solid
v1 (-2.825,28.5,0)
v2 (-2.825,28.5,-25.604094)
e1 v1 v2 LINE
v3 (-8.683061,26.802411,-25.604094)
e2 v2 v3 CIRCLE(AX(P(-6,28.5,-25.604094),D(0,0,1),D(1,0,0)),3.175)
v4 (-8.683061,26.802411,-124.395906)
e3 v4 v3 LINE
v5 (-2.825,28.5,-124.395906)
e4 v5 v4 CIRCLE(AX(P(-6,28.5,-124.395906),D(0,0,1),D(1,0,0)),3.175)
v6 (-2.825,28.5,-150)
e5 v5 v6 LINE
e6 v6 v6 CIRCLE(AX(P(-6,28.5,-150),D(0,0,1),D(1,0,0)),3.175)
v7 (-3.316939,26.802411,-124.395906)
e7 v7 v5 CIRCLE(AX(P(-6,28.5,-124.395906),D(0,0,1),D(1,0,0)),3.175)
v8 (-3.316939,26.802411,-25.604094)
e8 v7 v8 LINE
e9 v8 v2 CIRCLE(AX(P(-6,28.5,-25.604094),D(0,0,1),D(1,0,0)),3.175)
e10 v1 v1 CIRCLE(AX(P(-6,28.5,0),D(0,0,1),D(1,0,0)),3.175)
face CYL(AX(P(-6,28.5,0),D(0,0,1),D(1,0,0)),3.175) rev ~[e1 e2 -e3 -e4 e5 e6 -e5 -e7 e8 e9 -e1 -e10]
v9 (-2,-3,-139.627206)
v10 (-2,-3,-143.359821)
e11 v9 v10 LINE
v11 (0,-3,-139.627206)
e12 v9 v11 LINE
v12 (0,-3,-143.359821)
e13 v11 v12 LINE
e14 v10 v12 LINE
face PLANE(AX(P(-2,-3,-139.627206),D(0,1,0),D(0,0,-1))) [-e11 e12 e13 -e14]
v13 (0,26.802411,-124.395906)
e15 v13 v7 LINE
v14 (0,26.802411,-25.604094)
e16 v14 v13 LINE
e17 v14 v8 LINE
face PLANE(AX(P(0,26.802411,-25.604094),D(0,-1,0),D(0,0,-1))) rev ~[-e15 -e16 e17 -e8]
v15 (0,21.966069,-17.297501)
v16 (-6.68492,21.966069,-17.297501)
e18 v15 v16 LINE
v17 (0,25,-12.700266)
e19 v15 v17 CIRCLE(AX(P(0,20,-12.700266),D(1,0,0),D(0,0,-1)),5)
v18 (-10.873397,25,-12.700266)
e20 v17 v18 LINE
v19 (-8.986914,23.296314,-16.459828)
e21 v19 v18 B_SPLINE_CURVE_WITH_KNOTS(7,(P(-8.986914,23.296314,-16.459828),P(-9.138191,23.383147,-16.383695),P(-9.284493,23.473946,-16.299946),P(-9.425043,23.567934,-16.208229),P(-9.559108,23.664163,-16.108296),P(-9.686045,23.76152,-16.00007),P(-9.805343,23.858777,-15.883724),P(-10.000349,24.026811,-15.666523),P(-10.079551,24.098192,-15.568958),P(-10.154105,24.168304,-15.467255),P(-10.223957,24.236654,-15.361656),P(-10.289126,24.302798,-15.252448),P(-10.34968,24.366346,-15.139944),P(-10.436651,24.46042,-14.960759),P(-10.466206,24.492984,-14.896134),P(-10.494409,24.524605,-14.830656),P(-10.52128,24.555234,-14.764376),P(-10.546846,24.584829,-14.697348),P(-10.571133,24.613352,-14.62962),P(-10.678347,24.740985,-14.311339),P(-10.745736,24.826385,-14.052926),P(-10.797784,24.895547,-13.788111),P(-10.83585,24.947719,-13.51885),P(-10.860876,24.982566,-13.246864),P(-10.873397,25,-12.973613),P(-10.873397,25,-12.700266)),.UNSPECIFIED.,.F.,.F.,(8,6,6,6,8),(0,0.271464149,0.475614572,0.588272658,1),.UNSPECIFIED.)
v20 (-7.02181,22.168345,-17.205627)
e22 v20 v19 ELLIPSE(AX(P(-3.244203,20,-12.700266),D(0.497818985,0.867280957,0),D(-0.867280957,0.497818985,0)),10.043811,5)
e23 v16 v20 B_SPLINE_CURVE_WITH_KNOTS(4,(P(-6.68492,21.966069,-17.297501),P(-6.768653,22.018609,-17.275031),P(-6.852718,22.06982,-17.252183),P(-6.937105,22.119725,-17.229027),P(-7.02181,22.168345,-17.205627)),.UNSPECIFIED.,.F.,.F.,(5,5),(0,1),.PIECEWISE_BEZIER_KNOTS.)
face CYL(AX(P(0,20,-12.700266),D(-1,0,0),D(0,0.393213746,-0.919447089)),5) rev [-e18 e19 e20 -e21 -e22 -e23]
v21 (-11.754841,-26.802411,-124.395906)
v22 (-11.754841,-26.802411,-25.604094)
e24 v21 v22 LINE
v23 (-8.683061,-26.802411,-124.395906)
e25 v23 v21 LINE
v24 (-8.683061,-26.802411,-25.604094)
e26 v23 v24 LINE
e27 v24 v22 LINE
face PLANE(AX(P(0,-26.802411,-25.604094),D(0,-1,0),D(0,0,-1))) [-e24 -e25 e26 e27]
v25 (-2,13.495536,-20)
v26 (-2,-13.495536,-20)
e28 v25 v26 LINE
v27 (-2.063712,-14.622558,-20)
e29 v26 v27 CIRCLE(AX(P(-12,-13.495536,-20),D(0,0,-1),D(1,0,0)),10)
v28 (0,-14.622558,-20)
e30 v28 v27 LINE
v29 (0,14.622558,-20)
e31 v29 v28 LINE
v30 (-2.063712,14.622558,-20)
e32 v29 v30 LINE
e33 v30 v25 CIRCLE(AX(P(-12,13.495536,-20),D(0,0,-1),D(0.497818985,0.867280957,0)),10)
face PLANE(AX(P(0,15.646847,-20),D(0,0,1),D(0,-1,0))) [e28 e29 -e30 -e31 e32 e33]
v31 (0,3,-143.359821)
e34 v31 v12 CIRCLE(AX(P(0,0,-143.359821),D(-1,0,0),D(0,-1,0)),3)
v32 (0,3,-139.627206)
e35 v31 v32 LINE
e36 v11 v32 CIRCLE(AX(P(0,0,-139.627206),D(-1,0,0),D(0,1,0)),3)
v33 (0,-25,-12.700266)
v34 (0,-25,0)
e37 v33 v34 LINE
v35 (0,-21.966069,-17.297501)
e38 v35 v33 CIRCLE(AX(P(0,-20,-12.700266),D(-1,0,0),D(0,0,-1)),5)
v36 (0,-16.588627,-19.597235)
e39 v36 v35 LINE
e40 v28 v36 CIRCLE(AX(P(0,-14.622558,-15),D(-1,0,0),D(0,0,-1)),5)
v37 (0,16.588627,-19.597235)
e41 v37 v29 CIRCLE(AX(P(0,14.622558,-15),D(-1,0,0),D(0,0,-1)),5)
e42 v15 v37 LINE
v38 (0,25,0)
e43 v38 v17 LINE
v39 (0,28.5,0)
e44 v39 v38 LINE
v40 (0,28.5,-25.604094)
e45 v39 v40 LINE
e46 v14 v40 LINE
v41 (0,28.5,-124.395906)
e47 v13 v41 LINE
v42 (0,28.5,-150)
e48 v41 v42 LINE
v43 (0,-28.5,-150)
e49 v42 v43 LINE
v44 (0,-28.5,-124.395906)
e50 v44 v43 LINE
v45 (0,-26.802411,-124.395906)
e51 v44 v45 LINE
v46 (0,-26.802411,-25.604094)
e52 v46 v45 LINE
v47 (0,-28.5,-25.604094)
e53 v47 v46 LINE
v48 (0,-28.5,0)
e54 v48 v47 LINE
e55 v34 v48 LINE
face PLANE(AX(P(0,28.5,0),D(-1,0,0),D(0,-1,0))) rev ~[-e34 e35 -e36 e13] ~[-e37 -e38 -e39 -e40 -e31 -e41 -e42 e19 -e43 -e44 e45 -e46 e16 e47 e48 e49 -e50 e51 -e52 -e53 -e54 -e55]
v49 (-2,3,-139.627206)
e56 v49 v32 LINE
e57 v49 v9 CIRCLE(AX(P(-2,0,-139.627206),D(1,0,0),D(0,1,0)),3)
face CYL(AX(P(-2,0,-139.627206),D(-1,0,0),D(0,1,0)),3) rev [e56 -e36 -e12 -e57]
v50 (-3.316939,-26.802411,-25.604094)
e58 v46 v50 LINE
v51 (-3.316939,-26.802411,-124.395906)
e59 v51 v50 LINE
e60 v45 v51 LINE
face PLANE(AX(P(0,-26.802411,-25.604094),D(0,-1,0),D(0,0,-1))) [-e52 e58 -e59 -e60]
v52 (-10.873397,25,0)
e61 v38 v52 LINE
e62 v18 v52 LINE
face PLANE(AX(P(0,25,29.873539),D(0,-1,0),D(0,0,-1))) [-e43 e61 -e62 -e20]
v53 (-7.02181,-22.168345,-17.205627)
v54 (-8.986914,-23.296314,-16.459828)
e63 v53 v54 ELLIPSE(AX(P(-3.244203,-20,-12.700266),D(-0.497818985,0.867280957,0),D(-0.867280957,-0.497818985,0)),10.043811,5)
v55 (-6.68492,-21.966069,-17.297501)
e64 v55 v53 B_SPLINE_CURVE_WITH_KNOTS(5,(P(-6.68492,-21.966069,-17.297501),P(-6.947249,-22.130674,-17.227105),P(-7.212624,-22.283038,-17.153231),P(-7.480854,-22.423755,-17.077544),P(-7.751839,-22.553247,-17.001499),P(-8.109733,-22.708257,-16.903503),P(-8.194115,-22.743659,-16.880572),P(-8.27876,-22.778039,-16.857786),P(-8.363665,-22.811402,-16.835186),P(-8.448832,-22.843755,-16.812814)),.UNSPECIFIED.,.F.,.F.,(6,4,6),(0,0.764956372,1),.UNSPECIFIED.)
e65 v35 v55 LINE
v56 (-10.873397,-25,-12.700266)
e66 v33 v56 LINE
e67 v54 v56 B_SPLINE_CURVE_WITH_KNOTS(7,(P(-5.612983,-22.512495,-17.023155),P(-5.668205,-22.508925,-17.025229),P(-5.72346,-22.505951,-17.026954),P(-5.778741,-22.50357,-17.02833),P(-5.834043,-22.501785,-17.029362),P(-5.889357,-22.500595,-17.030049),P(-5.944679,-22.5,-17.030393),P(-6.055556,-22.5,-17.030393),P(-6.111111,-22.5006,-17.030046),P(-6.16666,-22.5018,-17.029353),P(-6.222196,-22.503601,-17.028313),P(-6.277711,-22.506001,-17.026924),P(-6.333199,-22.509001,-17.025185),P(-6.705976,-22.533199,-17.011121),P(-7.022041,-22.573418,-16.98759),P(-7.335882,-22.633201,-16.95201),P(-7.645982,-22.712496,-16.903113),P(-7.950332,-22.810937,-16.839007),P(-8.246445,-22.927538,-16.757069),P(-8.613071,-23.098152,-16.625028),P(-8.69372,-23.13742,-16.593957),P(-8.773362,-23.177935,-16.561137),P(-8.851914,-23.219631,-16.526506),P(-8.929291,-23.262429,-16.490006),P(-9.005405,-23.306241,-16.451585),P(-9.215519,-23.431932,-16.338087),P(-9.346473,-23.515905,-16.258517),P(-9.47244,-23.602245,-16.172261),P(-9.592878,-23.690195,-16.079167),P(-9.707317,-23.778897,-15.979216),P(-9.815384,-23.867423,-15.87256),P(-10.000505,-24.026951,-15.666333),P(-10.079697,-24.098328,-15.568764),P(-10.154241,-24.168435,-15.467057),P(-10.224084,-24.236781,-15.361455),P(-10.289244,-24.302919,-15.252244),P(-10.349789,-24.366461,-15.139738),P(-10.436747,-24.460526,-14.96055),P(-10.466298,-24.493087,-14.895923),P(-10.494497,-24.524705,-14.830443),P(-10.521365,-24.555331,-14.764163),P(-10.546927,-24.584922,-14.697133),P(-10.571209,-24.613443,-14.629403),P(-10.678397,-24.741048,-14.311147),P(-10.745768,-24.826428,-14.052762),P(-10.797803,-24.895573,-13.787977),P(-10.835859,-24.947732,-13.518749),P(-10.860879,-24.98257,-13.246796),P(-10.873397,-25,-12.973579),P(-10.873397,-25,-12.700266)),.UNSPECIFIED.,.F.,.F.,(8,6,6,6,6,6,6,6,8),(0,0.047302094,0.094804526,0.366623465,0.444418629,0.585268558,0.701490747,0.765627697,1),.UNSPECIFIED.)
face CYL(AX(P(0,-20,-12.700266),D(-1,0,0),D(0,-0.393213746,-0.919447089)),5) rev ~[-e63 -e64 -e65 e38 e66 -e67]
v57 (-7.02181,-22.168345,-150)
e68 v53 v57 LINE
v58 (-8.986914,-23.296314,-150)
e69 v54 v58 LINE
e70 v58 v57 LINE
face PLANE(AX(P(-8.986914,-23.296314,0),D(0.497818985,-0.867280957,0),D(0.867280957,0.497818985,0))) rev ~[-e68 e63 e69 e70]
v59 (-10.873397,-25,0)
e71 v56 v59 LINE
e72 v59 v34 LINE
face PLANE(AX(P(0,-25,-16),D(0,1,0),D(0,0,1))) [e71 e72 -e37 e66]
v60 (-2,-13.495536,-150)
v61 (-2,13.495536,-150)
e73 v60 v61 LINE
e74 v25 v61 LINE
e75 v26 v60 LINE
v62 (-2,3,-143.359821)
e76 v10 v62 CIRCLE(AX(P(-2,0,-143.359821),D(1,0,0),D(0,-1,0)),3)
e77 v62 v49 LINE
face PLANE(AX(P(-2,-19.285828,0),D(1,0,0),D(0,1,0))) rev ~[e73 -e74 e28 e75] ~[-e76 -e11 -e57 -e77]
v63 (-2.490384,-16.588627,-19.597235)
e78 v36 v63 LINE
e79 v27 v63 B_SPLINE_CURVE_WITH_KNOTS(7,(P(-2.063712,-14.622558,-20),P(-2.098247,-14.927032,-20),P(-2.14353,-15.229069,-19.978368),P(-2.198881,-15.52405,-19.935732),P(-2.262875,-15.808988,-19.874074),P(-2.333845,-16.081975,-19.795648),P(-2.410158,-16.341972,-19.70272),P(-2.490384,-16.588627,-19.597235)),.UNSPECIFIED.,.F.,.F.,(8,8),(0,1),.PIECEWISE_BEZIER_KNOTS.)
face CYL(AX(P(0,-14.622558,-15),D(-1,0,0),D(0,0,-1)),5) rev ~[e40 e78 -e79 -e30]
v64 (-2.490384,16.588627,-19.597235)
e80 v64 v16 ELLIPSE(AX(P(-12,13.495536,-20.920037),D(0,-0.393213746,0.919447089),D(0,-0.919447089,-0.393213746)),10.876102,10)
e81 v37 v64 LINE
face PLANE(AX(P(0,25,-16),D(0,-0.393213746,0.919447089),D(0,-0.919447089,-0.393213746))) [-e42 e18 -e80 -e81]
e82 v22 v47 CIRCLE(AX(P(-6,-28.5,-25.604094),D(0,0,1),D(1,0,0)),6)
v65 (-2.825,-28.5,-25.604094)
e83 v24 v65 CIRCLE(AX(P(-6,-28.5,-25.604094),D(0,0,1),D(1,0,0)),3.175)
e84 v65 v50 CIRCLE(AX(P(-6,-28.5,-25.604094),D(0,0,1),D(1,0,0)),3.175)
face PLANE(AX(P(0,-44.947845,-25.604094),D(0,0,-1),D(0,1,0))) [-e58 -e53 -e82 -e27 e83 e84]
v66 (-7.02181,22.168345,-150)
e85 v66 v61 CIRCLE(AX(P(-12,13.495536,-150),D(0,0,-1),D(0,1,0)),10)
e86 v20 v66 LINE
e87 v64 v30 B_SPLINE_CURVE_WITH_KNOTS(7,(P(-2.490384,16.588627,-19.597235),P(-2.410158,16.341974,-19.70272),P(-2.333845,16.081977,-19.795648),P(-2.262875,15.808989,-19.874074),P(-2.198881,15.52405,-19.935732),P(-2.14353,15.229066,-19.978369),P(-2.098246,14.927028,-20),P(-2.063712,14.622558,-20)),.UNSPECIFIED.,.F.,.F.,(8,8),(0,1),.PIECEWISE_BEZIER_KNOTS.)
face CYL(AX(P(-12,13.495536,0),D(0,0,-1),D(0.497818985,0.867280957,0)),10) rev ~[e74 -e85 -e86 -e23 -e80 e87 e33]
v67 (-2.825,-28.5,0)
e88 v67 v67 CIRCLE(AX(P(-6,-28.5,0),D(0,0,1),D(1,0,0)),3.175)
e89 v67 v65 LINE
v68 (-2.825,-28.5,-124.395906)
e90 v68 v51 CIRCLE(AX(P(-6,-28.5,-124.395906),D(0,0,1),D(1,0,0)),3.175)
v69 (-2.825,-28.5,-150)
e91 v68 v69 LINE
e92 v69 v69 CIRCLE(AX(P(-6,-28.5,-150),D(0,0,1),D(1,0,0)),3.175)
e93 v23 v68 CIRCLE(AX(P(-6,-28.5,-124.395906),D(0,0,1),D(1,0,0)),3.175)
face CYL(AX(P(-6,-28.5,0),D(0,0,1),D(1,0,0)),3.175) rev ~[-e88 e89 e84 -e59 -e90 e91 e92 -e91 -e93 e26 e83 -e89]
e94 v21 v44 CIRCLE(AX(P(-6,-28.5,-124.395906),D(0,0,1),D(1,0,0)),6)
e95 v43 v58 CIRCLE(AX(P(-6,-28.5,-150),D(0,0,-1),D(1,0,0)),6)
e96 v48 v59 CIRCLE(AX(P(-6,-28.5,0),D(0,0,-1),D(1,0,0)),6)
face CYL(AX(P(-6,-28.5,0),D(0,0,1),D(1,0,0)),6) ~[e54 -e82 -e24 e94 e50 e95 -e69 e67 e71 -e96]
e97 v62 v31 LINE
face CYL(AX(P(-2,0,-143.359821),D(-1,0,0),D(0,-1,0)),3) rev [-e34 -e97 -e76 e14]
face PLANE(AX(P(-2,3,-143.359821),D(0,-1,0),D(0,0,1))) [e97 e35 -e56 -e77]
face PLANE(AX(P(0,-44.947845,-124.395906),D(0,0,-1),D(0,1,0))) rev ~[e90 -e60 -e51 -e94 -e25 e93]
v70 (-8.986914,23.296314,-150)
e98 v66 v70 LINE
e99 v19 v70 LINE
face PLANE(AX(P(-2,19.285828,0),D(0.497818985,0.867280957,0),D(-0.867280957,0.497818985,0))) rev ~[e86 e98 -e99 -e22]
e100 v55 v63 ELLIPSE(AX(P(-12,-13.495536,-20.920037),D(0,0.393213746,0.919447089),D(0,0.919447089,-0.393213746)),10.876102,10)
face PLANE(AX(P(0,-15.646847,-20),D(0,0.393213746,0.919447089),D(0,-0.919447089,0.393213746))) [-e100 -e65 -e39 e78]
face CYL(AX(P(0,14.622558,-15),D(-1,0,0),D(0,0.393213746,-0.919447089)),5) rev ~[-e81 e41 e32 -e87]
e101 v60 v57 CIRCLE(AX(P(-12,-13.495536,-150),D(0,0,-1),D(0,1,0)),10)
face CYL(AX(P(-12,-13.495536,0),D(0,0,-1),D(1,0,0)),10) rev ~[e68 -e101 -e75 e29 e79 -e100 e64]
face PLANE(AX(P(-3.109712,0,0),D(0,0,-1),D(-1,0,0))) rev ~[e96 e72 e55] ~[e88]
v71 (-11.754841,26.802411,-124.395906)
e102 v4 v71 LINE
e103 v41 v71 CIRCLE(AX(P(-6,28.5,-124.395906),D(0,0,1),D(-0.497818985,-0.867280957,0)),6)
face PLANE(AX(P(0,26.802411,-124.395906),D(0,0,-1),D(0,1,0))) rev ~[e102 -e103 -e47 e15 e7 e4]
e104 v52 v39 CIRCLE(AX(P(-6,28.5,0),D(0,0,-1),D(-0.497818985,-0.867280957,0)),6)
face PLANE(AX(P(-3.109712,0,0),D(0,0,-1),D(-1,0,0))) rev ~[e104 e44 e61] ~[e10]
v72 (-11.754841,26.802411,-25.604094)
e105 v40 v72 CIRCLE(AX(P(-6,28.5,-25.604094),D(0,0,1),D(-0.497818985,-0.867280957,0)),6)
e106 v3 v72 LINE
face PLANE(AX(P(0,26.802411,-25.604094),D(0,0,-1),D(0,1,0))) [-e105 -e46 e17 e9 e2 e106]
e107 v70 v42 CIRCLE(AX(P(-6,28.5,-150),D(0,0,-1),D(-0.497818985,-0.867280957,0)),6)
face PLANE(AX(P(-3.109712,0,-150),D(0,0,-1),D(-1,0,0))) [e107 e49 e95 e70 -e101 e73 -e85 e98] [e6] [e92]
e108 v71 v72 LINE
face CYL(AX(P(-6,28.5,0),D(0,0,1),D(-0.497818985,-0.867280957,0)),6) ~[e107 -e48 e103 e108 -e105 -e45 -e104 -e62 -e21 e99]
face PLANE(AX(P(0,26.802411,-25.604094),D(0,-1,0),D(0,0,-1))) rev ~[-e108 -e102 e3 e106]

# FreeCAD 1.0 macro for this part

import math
import FreeCAD as App
import Part
import Sketcher

V = App.Vector
Q = App.Units.Quantity


def edges_at(feature, points):
    """Names of the edges that pass closest to the given points."""
    edges = feature.Shape.Edges
    near = lambda p: min(range(len(edges)), key=lambda i: edges[i].distToShape(Part.Vertex(*p))[0])
    return sorted({f"Edge{near(p) + 1}" for p in points})


def add_polygon(sketch, points):
    """Adds a closed chain of lines whose ends are joined by coincident constraints."""
    first, n = sketch.GeometryCount, len(points)
    for a, b in zip(points, points[1:] + points[:1]):
        sketch.addGeometry(Part.LineSegment(App.Vector(*a, 0), App.Vector(*b, 0)), False)
    for i in range(n):
        sketch.addConstraint(Sketcher.Constraint("Coincident", first + i, 2, first + (i + 1) % n, 1))

doc = App.newDocument("Part")
body = doc.addObject("PartDesign::Body", "Body")

sketch1 = body.newObject("Sketcher::SketchObject", "Sketch")
sketch1.AttachmentSupport = (doc.getObject("XY_Plane"), [""])
sketch1.MapMode = "FlatFace"
sketch1.addGeometry([
    Part.LineSegment(V(-9, 23.3, 0), V(-2, 19.3, 0)),
    Part.LineSegment(V(-2, 19.3, 0), V(-2, -19.3, 0)),
    Part.LineSegment(V(-2, -19.3, 0), V(-9, -23.3, 0)),
    Part.ArcOfCircle(Part.Circle(V(-6, -28.5, 0), V(0, 0, 1), 6), math.radians(120), math.radians(360)),
    Part.LineSegment(V(0, -28.5, 0), V(0, 28.5, 0)),
    Part.ArcOfCircle(Part.Circle(V(-6, 28.5, 0), V(0, 0, 1), 6), math.radians(0), math.radians(240)),
    Part.Circle(V(-6, -28.5, 0), V(0, 0, 1), 3.2),
    Part.Circle(V(-6, 28.5, 0), V(0, 0, 1), 3.2),
], False)
sketch1.addConstraint([
    Sketcher.Constraint("Coincident", 0, 2, 1, 1),
    Sketcher.Constraint("Coincident", 1, 2, 2, 1),
    Sketcher.Constraint("Tangent", 2, 2, 3, 1),
    Sketcher.Constraint("Tangent", 3, 2, 4, 1),
    Sketcher.Constraint("Tangent", 4, 2, 5, 1),
    Sketcher.Constraint("Tangent", 5, 2, 0, 1),
    Sketcher.Constraint("Vertical", 1),
    Sketcher.Constraint("Vertical", 4),
    Sketcher.Constraint("Coincident", 6, 3, 3, 3),
    Sketcher.Constraint("Coincident", 7, 3, 5, 3),
    Sketcher.Constraint("Equal", 3, 5),
    Sketcher.Constraint("Equal", 6, 7),
    Sketcher.Constraint("Symmetric", 3, 2, 4, 2, -1, 1),
    Sketcher.Constraint("Vertical", 2, 2, 5, 2),
    Sketcher.Constraint("Radius", 3, Q("6 mm")),
    Sketcher.Constraint("Diameter", 6, Q("6.35 mm")),
    Sketcher.Constraint("DistanceY", 4, 1, 4, 2, Q("57 mm")),
    Sketcher.Constraint("DistanceX", 0, 2, -1, 1, Q("2 mm")),
    Sketcher.Constraint("DistanceY", 1, 2, 1, 1, Q("38.571656 mm")),
])
pad1 = body.newObject("PartDesign::Pad", "Pad")
pad1.Profile = sketch1
pad1.Length = 150
pad1.Reversed = True
doc.recompute()

fillet = body.newObject("PartDesign::Fillet", "Fillet")
fillet.Base = (pad1, edges_at(pad1, [(-2, -19.286, -75), (-2, 19.286, -75)]))
fillet.Radius = 10

sketch2 = body.newObject("Sketcher::SketchObject", "Sketch001")
sketch2.AttachmentSupport = (doc.getObject("YZ_Plane"), [""])
sketch2.MapMode = "FlatFace"
add_polygon(sketch2, [(16, -20), (25, -16), (25, 30), (-25, 30), (-25, -16), (-16, -20)])
sketch2.addConstraint([
    Sketcher.Constraint("Vertical", 1),
    Sketcher.Constraint("Horizontal", 2),
    Sketcher.Constraint("Vertical", 3),
    Sketcher.Constraint("Horizontal", 5),
    Sketcher.Constraint("Symmetric", 0, 2, 3, 2, -2),
    Sketcher.Constraint("Equal", 0, 4),
    Sketcher.Constraint("DistanceX", 2, 2, 2, 1, Q("50 mm")),
    Sketcher.Constraint("DistanceY", 0, 2, -1, 1, Q("16 mm")),
    Sketcher.Constraint("DistanceY", 4, 2, -1, 1, Q("20 mm")),
    Sketcher.Constraint("DistanceY", 1, 1, 1, 2, Q("45.873539 mm")),
    Sketcher.Constraint("DistanceX", 5, 1, 5, 2, Q("31.293694 mm")),
])
pocket1 = body.newObject("PartDesign::Pocket", "Pocket")
pocket1.Profile = sketch2
pocket1.Type = "ThroughAll"
doc.recompute()

fillet2 = body.newObject("PartDesign::Fillet", "Fillet001")
fillet2.Base = (pocket1, edges_at(pocket1, [
    (-1.117, 15.647, -20),
    (-1.117, -15.647, -20),
    (-5.437, -25, -16),
    (-5.437, 25, -16),
]))
fillet2.Radius = 5

sketch3 = body.newObject("Sketcher::SketchObject", "Sketch002")
sketch3.AttachmentSupport = (doc.getObject("YZ_Plane"), [""])
sketch3.MapMode = "FlatFace"
add_polygon(sketch3, [(45, -26), (27, -26), (27, -124), (45, -124)])
add_polygon(sketch3, [(-27, -26), (-45, -26), (-45, -124), (-27, -124)])
sketch3.addConstraint([
    Sketcher.Constraint("Horizontal", 0),
    Sketcher.Constraint("Vertical", 1),
    Sketcher.Constraint("Horizontal", 2),
    Sketcher.Constraint("Vertical", 3),
    Sketcher.Constraint("Horizontal", 4),
    Sketcher.Constraint("Vertical", 5),
    Sketcher.Constraint("Horizontal", 6),
    Sketcher.Constraint("Vertical", 7),
    Sketcher.Constraint("Symmetric", 3, 2, 4, 2, -2),
    Sketcher.Constraint("Symmetric", 1, 2, 6, 2, -2),
    Sketcher.Constraint("DistanceX", 0, 2, 0, 1, Q("18.145435 mm")),
    Sketcher.Constraint("DistanceY", 1, 2, 1, 1, Q("98.791812 mm")),
    Sketcher.Constraint("DistanceX", -1, 1, 0, 2, Q("26.802411 mm")),
    Sketcher.Constraint("DistanceY", 0, 2, -1, 1, Q("25.604094 mm")),
])
pocket2 = body.newObject("PartDesign::Pocket", "Pocket001")
pocket2.Profile = sketch3
pocket2.Type = "ThroughAll"

sketch4 = body.newObject("Sketcher::SketchObject", "Sketch003")
sketch4.AttachmentSupport = (doc.getObject("YZ_Plane"), [""])
sketch4.MapMode = "FlatFace"
sketch4.AttachmentOffset = App.Placement(V(0, 0, -2), App.Rotation())
sketch4.addGeometry([
    Part.LineSegment(V(3, -139.6, 0), V(3, -143.4, 0)),
    Part.ArcOfCircle(Part.Circle(V(0, -143.4, 0), V(0, 0, 1), 3), math.radians(180), math.radians(360)),
    Part.LineSegment(V(-3, -143.4, 0), V(-3, -139.6, 0)),
    Part.ArcOfCircle(Part.Circle(V(0, -139.6, 0), V(0, 0, 1), 3), math.radians(0), math.radians(180)),
], False)
sketch4.addConstraint([
    Sketcher.Constraint("Tangent", 0, 2, 1, 2),
    Sketcher.Constraint("Tangent", 1, 1, 2, 1),
    Sketcher.Constraint("Tangent", 2, 2, 3, 2),
    Sketcher.Constraint("Tangent", 3, 1, 0, 1),
    Sketcher.Constraint("Vertical", 0),
    Sketcher.Constraint("Vertical", 2),
    Sketcher.Constraint("PointOnObject", 1, 3, -2),
    Sketcher.Constraint("Radius", 1, Q("3 mm")),
    Sketcher.Constraint("DistanceY", 0, 2, 0, 1, Q("3.732615 mm")),
    Sketcher.Constraint("DistanceY", 1, 3, -1, 1, Q("143.359821 mm")),
])
pocket3 = body.newObject("PartDesign::Pocket", "Pocket002")
pocket3.Profile = sketch4
pocket3.Type = "ThroughAll"
pocket3.Reversed = True

doc.recompute()
